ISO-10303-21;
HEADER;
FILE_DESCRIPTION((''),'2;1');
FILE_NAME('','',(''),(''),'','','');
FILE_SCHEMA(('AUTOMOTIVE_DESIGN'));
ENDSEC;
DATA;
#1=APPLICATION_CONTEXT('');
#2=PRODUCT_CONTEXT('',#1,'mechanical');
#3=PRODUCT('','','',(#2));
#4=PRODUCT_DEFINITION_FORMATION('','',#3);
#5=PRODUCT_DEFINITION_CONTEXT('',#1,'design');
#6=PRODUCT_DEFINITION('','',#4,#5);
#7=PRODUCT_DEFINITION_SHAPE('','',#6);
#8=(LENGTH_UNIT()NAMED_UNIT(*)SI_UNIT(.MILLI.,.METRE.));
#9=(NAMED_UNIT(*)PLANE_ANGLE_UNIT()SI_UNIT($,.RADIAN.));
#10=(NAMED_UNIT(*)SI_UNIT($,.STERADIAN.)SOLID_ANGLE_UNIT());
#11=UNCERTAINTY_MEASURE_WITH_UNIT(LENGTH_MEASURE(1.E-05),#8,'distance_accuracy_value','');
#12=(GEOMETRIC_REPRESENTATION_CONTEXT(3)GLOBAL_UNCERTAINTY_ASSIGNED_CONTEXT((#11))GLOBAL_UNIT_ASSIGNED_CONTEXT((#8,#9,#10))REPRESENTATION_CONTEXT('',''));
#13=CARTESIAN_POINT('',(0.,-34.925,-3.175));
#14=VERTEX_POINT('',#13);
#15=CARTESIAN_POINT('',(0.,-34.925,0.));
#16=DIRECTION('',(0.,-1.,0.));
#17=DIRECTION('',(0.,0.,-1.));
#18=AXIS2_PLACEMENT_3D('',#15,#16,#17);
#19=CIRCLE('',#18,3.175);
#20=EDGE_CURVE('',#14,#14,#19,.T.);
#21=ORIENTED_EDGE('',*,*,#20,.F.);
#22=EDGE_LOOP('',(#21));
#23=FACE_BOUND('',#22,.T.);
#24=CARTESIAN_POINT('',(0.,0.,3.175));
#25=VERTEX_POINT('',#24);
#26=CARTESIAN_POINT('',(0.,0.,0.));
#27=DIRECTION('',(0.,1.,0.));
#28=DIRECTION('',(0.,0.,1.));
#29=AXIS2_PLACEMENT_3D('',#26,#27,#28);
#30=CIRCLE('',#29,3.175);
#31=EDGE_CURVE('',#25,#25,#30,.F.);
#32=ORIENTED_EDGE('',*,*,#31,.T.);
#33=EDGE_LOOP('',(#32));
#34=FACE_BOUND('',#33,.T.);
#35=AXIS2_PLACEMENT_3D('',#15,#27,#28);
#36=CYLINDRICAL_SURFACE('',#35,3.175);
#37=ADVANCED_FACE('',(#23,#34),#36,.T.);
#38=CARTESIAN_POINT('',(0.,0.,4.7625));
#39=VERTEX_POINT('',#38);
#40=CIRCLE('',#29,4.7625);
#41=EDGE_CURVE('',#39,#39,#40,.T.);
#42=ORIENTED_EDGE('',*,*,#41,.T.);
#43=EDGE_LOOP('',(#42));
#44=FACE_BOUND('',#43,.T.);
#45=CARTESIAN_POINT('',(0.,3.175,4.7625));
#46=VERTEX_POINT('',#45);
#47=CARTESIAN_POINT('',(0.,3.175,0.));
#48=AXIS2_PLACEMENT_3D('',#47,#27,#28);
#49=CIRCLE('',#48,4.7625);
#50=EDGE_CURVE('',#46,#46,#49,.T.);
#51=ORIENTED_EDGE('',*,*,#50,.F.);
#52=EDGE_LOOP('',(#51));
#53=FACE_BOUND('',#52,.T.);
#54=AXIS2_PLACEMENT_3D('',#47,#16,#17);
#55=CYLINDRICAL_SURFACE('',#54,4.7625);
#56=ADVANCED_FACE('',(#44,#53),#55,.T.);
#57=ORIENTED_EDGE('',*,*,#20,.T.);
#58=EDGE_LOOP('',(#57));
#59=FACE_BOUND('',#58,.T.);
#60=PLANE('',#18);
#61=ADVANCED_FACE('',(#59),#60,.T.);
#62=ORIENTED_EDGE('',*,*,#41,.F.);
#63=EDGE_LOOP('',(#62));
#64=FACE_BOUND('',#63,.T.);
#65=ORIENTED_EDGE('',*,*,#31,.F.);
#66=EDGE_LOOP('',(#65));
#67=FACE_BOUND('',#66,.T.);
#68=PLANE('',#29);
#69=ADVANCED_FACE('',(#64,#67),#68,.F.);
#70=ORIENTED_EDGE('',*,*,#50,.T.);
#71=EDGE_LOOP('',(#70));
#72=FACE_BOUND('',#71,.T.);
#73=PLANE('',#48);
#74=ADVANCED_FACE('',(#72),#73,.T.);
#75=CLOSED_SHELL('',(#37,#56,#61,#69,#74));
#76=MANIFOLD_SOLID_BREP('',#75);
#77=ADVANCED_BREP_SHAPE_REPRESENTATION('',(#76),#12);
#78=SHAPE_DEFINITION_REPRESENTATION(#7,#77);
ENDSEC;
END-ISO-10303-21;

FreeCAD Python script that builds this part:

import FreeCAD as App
import Part
import Sketcher
Q = App.Units.Quantity

doc = App.newDocument("Part")
body = doc.addObject("PartDesign::Body", "Body")

# Sketch on XZ plane
sketch1 = body.newObject("Sketcher::SketchObject", "Sketch")
sketch1.AttachmentSupport = (doc.getObject("XZ_Plane"), [""])
sketch1.MapMode = "FlatFace"
sketch1.addGeometry(Part.Circle(App.Vector(0, 0, 0), App.Vector(0, 0, 1), 4.7625), False)
sketch1.addConstraint(Sketcher.Constraint("Coincident", 0, 3, -1, 1))
sketch1.addConstraint(Sketcher.Constraint("Diameter", 0, Q("0.375 in")))
pad1 = body.newObject("PartDesign::Pad", "Pad")
pad1.Profile = sketch1
pad1.Length = Q("0.125 in")
pad1.Reversed = True

# Sketch on XZ plane
sketch2 = body.newObject("Sketcher::SketchObject", "Sketch001")
sketch2.AttachmentSupport = (doc.getObject("XZ_Plane"), [""])
sketch2.MapMode = "FlatFace"
sketch2.addGeometry(Part.Circle(App.Vector(0, 0, 0), App.Vector(0, 0, 1), 3.175), False)
sketch2.addConstraint(Sketcher.Constraint("Coincident", 0, 3, -1, 1))
sketch2.addConstraint(Sketcher.Constraint("Diameter", 0, Q("0.25 in")))
pad2 = body.newObject("PartDesign::Pad", "Pad001")
pad2.Profile = sketch2
pad2.Length = Q("1.375 in")

doc.recompute()
